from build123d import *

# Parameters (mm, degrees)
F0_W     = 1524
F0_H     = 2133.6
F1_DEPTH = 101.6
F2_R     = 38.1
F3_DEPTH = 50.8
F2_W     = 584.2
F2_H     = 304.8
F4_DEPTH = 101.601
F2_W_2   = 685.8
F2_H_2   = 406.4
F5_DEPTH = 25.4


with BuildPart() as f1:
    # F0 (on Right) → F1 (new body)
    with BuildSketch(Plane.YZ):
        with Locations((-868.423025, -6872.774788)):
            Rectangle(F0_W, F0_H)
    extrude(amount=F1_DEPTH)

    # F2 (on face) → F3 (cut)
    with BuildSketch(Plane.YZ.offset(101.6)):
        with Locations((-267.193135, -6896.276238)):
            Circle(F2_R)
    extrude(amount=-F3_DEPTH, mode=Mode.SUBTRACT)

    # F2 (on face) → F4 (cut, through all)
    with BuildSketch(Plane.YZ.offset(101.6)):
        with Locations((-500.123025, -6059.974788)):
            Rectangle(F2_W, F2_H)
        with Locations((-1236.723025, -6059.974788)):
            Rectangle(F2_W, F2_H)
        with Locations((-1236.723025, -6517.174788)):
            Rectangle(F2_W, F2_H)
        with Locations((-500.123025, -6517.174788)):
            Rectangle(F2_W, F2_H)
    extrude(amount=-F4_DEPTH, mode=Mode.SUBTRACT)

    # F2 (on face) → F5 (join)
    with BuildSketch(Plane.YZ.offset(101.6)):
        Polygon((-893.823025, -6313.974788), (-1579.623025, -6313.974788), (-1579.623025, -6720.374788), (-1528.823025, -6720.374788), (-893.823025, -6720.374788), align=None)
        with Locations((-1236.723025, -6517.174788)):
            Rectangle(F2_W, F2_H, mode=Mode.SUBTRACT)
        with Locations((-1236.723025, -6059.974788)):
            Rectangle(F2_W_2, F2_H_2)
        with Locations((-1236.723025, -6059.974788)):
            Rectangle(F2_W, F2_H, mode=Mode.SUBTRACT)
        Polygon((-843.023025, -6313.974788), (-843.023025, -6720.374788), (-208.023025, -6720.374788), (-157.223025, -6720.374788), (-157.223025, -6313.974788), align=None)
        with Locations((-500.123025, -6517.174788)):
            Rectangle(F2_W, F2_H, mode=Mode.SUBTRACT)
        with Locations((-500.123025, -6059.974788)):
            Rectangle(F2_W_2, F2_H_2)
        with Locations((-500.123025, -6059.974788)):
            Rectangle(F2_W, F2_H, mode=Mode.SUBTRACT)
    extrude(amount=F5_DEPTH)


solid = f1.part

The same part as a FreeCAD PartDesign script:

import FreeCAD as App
import Part
import Sketcher
Q = App.Units.Quantity

doc = App.newDocument("Part")
body = doc.addObject("PartDesign::Body", "Body")

# Sketch on YZ plane
sketch1 = body.newObject("Sketcher::SketchObject", "Sketch")
sketch1.AttachmentSupport = (doc.getObject("YZ_Plane"), [""])
sketch1.MapMode = "FlatFace"
sketch1.addGeometry([
    Part.LineSegment(App.Vector(-1630.423025, -5805.974788, 0), App.Vector(-1630.423025, -7939.574788, 0)),
    Part.LineSegment(App.Vector(-1630.423025, -7939.574788, 0), App.Vector(-106.423025, -7939.574788, 0)),
    Part.LineSegment(App.Vector(-106.423025, -7939.574788, 0), App.Vector(-106.423025, -5805.974788, 0)),
    Part.LineSegment(App.Vector(-106.423025, -5805.974788, 0), App.Vector(-1630.423025, -5805.974788, 0)),
], False)
sketch1.addConstraint([
    Sketcher.Constraint("Coincident", 0, 2, 1, 1),
    Sketcher.Constraint("Coincident", 1, 2, 2, 1),
    Sketcher.Constraint("Coincident", 2, 2, 3, 1),
    Sketcher.Constraint("Coincident", 3, 2, 0, 1),
    Sketcher.Constraint("Vertical", 0),
    Sketcher.Constraint("Horizontal", 1),
    Sketcher.Constraint("Vertical", 2),
    Sketcher.Constraint("Horizontal", 3),
    Sketcher.Constraint("DistanceX", 1, 1, 1, 2, Q("60 in")),
    Sketcher.Constraint("DistanceY", 0, 2, 0, 1, Q("84 in")),
    Sketcher.Constraint("DistanceY", 0, 2, -1, 1, Q("7939.574788 mm")),
    Sketcher.Constraint("DistanceX", 0, 2, -1, 1, Q("1630.423025 mm")),
])
pad1 = body.newObject("PartDesign::Pad", "Pad")
pad1.Profile = sketch1
pad1.Length = Q("4 in")

# Sketch on YZ plane
sketch2 = body.newObject("Sketcher::SketchObject", "Sketch001")
sketch2.AttachmentSupport = (doc.getObject("YZ_Plane"), [""])
sketch2.MapMode = "FlatFace"
sketch2.AttachmentOffset = App.Placement(App.Vector(0, 0, 4 * 25.4), App.Rotation())
sketch2.addGeometry(Part.Circle(App.Vector(-267.193135, -6896.276238, 0), App.Vector(0, 0, 1), 38.1), False)
sketch2.addConstraint([
    Sketcher.Constraint("Diameter", 0, Q("3 in")),
    Sketcher.Constraint("DistanceY", 0, 3, -1, 1, Q("6896.276238 mm")),
    Sketcher.Constraint("DistanceX", 0, 3, -1, 1, Q("267.193135 mm")),
])
pocket1 = body.newObject("PartDesign::Pocket", "Pocket")
pocket1.Profile = sketch2
pocket1.Length = Q("2 in")

# Sketch on YZ plane
sketch3 = body.newObject("Sketcher::SketchObject", "Sketch002")
sketch3.AttachmentSupport = (doc.getObject("YZ_Plane"), [""])
sketch3.MapMode = "FlatFace"
sketch3.AttachmentOffset = App.Placement(App.Vector(0, 0, 4 * 25.4), App.Rotation())
sketch3.addGeometry([
    Part.LineSegment(App.Vector(-792.223025, -5907.574788, 0), App.Vector(-792.223025, -6212.374788, 0)),  # 0
    Part.LineSegment(App.Vector(-792.223025, -6212.374788, 0), App.Vector(-208.023025, -6212.374788, 0)),  # 1
    Part.LineSegment(App.Vector(-208.023025, -6212.374788, 0), App.Vector(-208.023025, -5907.574788, 0)),  # 2
    Part.LineSegment(App.Vector(-208.023025, -5907.574788, 0), App.Vector(-792.223025, -5907.574788, 0)),  # 3
    Part.LineSegment(App.Vector(-1528.823025, -5907.574788, 0), App.Vector(-1528.823025, -6212.374788, 0)),  # 4
    Part.LineSegment(App.Vector(-1528.823025, -6212.374788, 0), App.Vector(-944.623025, -6212.374788, 0)),  # 5
    Part.LineSegment(App.Vector(-944.623025, -6212.374788, 0), App.Vector(-944.623025, -5907.574788, 0)),  # 6
    Part.LineSegment(App.Vector(-944.623025, -5907.574788, 0), App.Vector(-1528.823025, -5907.574788, 0)),  # 7
    Part.LineSegment(App.Vector(-1528.823025, -6364.774788, 0), App.Vector(-1528.823025, -6669.574788, 0)),  # 8
    Part.LineSegment(App.Vector(-1528.823025, -6669.574788, 0), App.Vector(-944.623025, -6669.574788, 0)),  # 9
    Part.LineSegment(App.Vector(-944.623025, -6669.574788, 0), App.Vector(-944.623025, -6364.774788, 0)),  # 10
    Part.LineSegment(App.Vector(-944.623025, -6364.774788, 0), App.Vector(-1528.823025, -6364.774788, 0)),  # 11
    Part.LineSegment(App.Vector(-792.223025, -6364.774788, 0), App.Vector(-792.223025, -6669.574788, 0)),  # 12
    Part.LineSegment(App.Vector(-792.223025, -6669.574788, 0), App.Vector(-208.023025, -6669.574788, 0)),  # 13
    Part.LineSegment(App.Vector(-208.023025, -6669.574788, 0), App.Vector(-208.023025, -6364.774788, 0)),  # 14
    Part.LineSegment(App.Vector(-208.023025, -6364.774788, 0), App.Vector(-792.223025, -6364.774788, 0)),  # 15
], False)
sketch3.addConstraint([
    Sketcher.Constraint("Coincident", 0, 2, 1, 1),
    Sketcher.Constraint("Coincident", 1, 2, 2, 1),
    Sketcher.Constraint("Coincident", 2, 2, 3, 1),
    Sketcher.Constraint("Coincident", 3, 2, 0, 1),
    Sketcher.Constraint("Coincident", 4, 2, 5, 1),
    Sketcher.Constraint("Coincident", 5, 2, 6, 1),
    Sketcher.Constraint("Coincident", 6, 2, 7, 1),
    Sketcher.Constraint("Coincident", 7, 2, 4, 1),
    Sketcher.Constraint("Coincident", 8, 2, 9, 1),
    Sketcher.Constraint("Coincident", 9, 2, 10, 1),
    Sketcher.Constraint("Coincident", 10, 2, 11, 1),
    Sketcher.Constraint("Coincident", 11, 2, 8, 1),
    Sketcher.Constraint("Coincident", 12, 2, 13, 1),
    Sketcher.Constraint("Coincident", 13, 2, 14, 1),
    Sketcher.Constraint("Coincident", 14, 2, 15, 1),
    Sketcher.Constraint("Coincident", 15, 2, 12, 1),
    Sketcher.Constraint("Vertical", 0),
    Sketcher.Constraint("Horizontal", 1),
    Sketcher.Constraint("Vertical", 2),
    Sketcher.Constraint("Horizontal", 3),
    Sketcher.Constraint("Vertical", 4),
    Sketcher.Constraint("Horizontal", 5),
    Sketcher.Constraint("Vertical", 6),
    Sketcher.Constraint("Horizontal", 7),
    Sketcher.Constraint("Vertical", 8),
    Sketcher.Constraint("Horizontal", 9),
    Sketcher.Constraint("Vertical", 10),
    Sketcher.Constraint("Horizontal", 11),
    Sketcher.Constraint("Vertical", 12),
    Sketcher.Constraint("Horizontal", 13),
    Sketcher.Constraint("Vertical", 14),
    Sketcher.Constraint("Horizontal", 15),
    Sketcher.Constraint("Horizontal", 1, 2, 4, 2),
    Sketcher.Constraint("Horizontal", 3, 2, 6, 2),
    Sketcher.Constraint("Horizontal", 9, 2, 12, 2),
    Sketcher.Constraint("Horizontal", 11, 2, 14, 2),
    Sketcher.Constraint("Vertical", 7, 2, 8, 2),
    Sketcher.Constraint("Vertical", 6, 2, 9, 2),
    Sketcher.Constraint("Vertical", 3, 2, 12, 2),
    Sketcher.Constraint("Vertical", 2, 2, 13, 2),
    Sketcher.Constraint("Equal", 3, 5),
    Sketcher.Constraint("Equal", 6, 8),
    Sketcher.Constraint("DistanceX", 1, 1, 1, 2, Q("23 in")),
    Sketcher.Constraint("DistanceY", 0, 2, 0, 1, Q("12 in")),
    Sketcher.Constraint("DistanceX", 4, 2, 0, 2, Q("29 in")),
    Sketcher.Constraint("DistanceY", 8, 2, 4, 2, Q("18 in")),
    Sketcher.Constraint("DistanceY", 0, 2, -1, 1, Q("6212.374788 mm")),
    Sketcher.Constraint("DistanceX", 0, 2, -1, 1, Q("792.223025 mm")),
])
pocket2 = body.newObject("PartDesign::Pocket", "Pocket001")
pocket2.Profile = sketch3
pocket2.Type = "ThroughAll"

# Sketch on YZ plane
sketch4 = body.newObject("Sketcher::SketchObject", "Sketch003")
sketch4.AttachmentSupport = (doc.getObject("YZ_Plane"), [""])
sketch4.MapMode = "FlatFace"
sketch4.AttachmentOffset = App.Placement(App.Vector(0, 0, 4 * 25.4), App.Rotation())
sketch4.addGeometry([
    Part.LineSegment(App.Vector(-893.823025, -6313.974788, 0), App.Vector(-1579.623025, -6313.974788, 0)),  # 0
    Part.LineSegment(App.Vector(-1579.623025, -6313.974788, 0), App.Vector(-1579.623025, -6720.374788, 0)),  # 1
    Part.LineSegment(App.Vector(-1579.623025, -6720.374788, 0), App.Vector(-893.823025, -6720.374788, 0)),  # 2
    Part.LineSegment(App.Vector(-893.823025, -6720.374788, 0), App.Vector(-893.823025, -6313.974788, 0)),  # 3
    Part.LineSegment(App.Vector(-944.623025, -6669.574788, 0), App.Vector(-1528.823025, -6669.574788, 0)),  # 4
    Part.LineSegment(App.Vector(-1528.823025, -6669.574788, 0), App.Vector(-1528.823025, -6364.774788, 0)),  # 5
    Part.LineSegment(App.Vector(-1528.823025, -6364.774788, 0), App.Vector(-944.623025, -6364.774788, 0)),  # 6
    Part.LineSegment(App.Vector(-944.623025, -6364.774788, 0), App.Vector(-944.623025, -6669.574788, 0)),  # 7
    Part.LineSegment(App.Vector(-1579.623025, -5856.774788, 0), App.Vector(-1579.623025, -6263.174788, 0)),  # 8
    Part.LineSegment(App.Vector(-1579.623025, -6263.174788, 0), App.Vector(-893.823025, -6263.174788, 0)),  # 9
    Part.LineSegment(App.Vector(-893.823025, -6263.174788, 0), App.Vector(-893.823025, -5856.774788, 0)),  # 10
    Part.LineSegment(App.Vector(-893.823025, -5856.774788, 0), App.Vector(-1579.623025, -5856.774788, 0)),  # 11
    Part.LineSegment(App.Vector(-944.623025, -6212.374788, 0), App.Vector(-1528.823025, -6212.374788, 0)),  # 12
    Part.LineSegment(App.Vector(-1528.823025, -6212.374788, 0), App.Vector(-1528.823025, -5907.574788, 0)),  # 13
    Part.LineSegment(App.Vector(-1528.823025, -5907.574788, 0), App.Vector(-944.623025, -5907.574788, 0)),  # 14
    Part.LineSegment(App.Vector(-944.623025, -5907.574788, 0), App.Vector(-944.623025, -6212.374788, 0)),  # 15
    Part.LineSegment(App.Vector(-843.023025, -6313.974788, 0), App.Vector(-843.023025, -6720.374788, 0)),  # 16
    Part.LineSegment(App.Vector(-843.023025, -6720.374788, 0), App.Vector(-157.223025, -6720.374788, 0)),  # 17
    Part.LineSegment(App.Vector(-157.223025, -6720.374788, 0), App.Vector(-157.223025, -6313.974788, 0)),  # 18
    Part.LineSegment(App.Vector(-157.223025, -6313.974788, 0), App.Vector(-843.023025, -6313.974788, 0)),  # 19
    Part.LineSegment(App.Vector(-208.023025, -6669.574788, 0), App.Vector(-792.223025, -6669.574788, 0)),  # 20
    Part.LineSegment(App.Vector(-792.223025, -6669.574788, 0), App.Vector(-792.223025, -6364.774788, 0)),  # 21
    Part.LineSegment(App.Vector(-792.223025, -6364.774788, 0), App.Vector(-208.023025, -6364.774788, 0)),  # 22
    Part.LineSegment(App.Vector(-208.023025, -6364.774788, 0), App.Vector(-208.023025, -6669.574788, 0)),  # 23
    Part.LineSegment(App.Vector(-843.023025, -5856.774788, 0), App.Vector(-843.023025, -6263.174788, 0)),  # 24
    Part.LineSegment(App.Vector(-843.023025, -6263.174788, 0), App.Vector(-157.223025, -6263.174788, 0)),  # 25
    Part.LineSegment(App.Vector(-157.223025, -6263.174788, 0), App.Vector(-157.223025, -5856.774788, 0)),  # 26
    Part.LineSegment(App.Vector(-157.223025, -5856.774788, 0), App.Vector(-843.023025, -5856.774788, 0)),  # 27
    Part.LineSegment(App.Vector(-208.023025, -6212.374788, 0), App.Vector(-792.223025, -6212.374788, 0)),  # 28
    Part.LineSegment(App.Vector(-792.223025, -6212.374788, 0), App.Vector(-792.223025, -5907.574788, 0)),  # 29
    Part.LineSegment(App.Vector(-792.223025, -5907.574788, 0), App.Vector(-208.023025, -5907.574788, 0)),  # 30
    Part.LineSegment(App.Vector(-208.023025, -5907.574788, 0), App.Vector(-208.023025, -6212.374788, 0)),  # 31
], False)
sketch4.addConstraint([
    Sketcher.Constraint("Coincident", 0, 2, 1, 1),
    Sketcher.Constraint("Coincident", 1, 2, 2, 1),
    Sketcher.Constraint("Coincident", 2, 2, 3, 1),
    Sketcher.Constraint("Coincident", 3, 2, 0, 1),
    Sketcher.Constraint("Coincident", 4, 2, 5, 1),
    Sketcher.Constraint("Coincident", 5, 2, 6, 1),
    Sketcher.Constraint("Coincident", 6, 2, 7, 1),
    Sketcher.Constraint("Coincident", 7, 2, 4, 1),
    Sketcher.Constraint("Coincident", 8, 2, 9, 1),
    Sketcher.Constraint("Coincident", 9, 2, 10, 1),
    Sketcher.Constraint("Coincident", 10, 2, 11, 1),
    Sketcher.Constraint("Coincident", 11, 2, 8, 1),
    Sketcher.Constraint("Coincident", 12, 2, 13, 1),
    Sketcher.Constraint("Coincident", 13, 2, 14, 1),
    Sketcher.Constraint("Coincident", 14, 2, 15, 1),
    Sketcher.Constraint("Coincident", 15, 2, 12, 1),
    Sketcher.Constraint("Coincident", 16, 2, 17, 1),
    Sketcher.Constraint("Coincident", 17, 2, 18, 1),
    Sketcher.Constraint("Coincident", 18, 2, 19, 1),
    Sketcher.Constraint("Coincident", 19, 2, 16, 1),
    Sketcher.Constraint("Coincident", 20, 2, 21, 1),
    Sketcher.Constraint("Coincident", 21, 2, 22, 1),
    Sketcher.Constraint("Coincident", 22, 2, 23, 1),
    Sketcher.Constraint("Coincident", 23, 2, 20, 1),
    Sketcher.Constraint("Coincident", 24, 2, 25, 1),
    Sketcher.Constraint("Coincident", 25, 2, 26, 1),
    Sketcher.Constraint("Coincident", 26, 2, 27, 1),
    Sketcher.Constraint("Coincident", 27, 2, 24, 1),
    Sketcher.Constraint("Coincident", 28, 2, 29, 1),
    Sketcher.Constraint("Coincident", 29, 2, 30, 1),
    Sketcher.Constraint("Coincident", 30, 2, 31, 1),
    Sketcher.Constraint("Coincident", 31, 2, 28, 1),
    Sketcher.Constraint("Horizontal", 0),
    Sketcher.Constraint("Vertical", 1),
    Sketcher.Constraint("Horizontal", 2),
    Sketcher.Constraint("Vertical", 3),
    Sketcher.Constraint("Horizontal", 4),
    Sketcher.Constraint("Vertical", 5),
    Sketcher.Constraint("Horizontal", 6),
    Sketcher.Constraint("Vertical", 7),
    Sketcher.Constraint("Vertical", 8),
    Sketcher.Constraint("Horizontal", 9),
    Sketcher.Constraint("Vertical", 10),
    Sketcher.Constraint("Horizontal", 11),
    Sketcher.Constraint("Horizontal", 12),
    Sketcher.Constraint("Vertical", 13),
    Sketcher.Constraint("Horizontal", 14),
    Sketcher.Constraint("Vertical", 15),
    Sketcher.Constraint("Vertical", 16),
    Sketcher.Constraint("Horizontal", 17),
    Sketcher.Constraint("Vertical", 18),
    Sketcher.Constraint("Horizontal", 19),
    Sketcher.Constraint("Horizontal", 20),
    Sketcher.Constraint("Vertical", 21),
    Sketcher.Constraint("Horizontal", 22),
    Sketcher.Constraint("Vertical", 23),
    Sketcher.Constraint("Vertical", 24),
    Sketcher.Constraint("Horizontal", 25),
    Sketcher.Constraint("Vertical", 26),
    Sketcher.Constraint("Horizontal", 27),
    Sketcher.Constraint("Horizontal", 28),
    Sketcher.Constraint("Vertical", 29),
    Sketcher.Constraint("Horizontal", 30),
    Sketcher.Constraint("Vertical", 31),
    Sketcher.Constraint("Horizontal", 2, 2, 16, 2),
    Sketcher.Constraint("Horizontal", 3, 2, 18, 2),
    Sketcher.Constraint("Horizontal", 7, 2, 20, 2),
    Sketcher.Constraint("Horizontal", 6, 2, 21, 2),
    Sketcher.Constraint("Horizontal", 9, 2, 24, 2),
    Sketcher.Constraint("Horizontal", 11, 2, 26, 2),
    Sketcher.Constraint("Horizontal", 15, 2, 28, 2),
    Sketcher.Constraint("Horizontal", 14, 2, 29, 2),
    Sketcher.Constraint("Vertical", 1, 2, 8, 2),
    Sketcher.Constraint("Vertical", 3, 2, 9, 2),
    Sketcher.Constraint("Vertical", 5, 2, 12, 2),
    Sketcher.Constraint("Vertical", 7, 2, 14, 2),
    Sketcher.Constraint("Vertical", 19, 2, 24, 2),
    Sketcher.Constraint("Vertical", 18, 2, 25, 2),
    Sketcher.Constraint("Vertical", 21, 2, 28, 2),
    Sketcher.Constraint("Vertical", 23, 2, 30, 2),
    Sketcher.Constraint("Equal", 11, 17),
    Sketcher.Constraint("Equal", 14, 20),
    Sketcher.Constraint("Equal", 3, 8),
    Sketcher.Constraint("Equal", 7, 13),
    Sketcher.Constraint("DistanceX", 0, 2, 0, 1, Q("27 in")),
    Sketcher.Constraint("DistanceX", 4, 2, 4, 1, Q("23 in")),
    Sketcher.Constraint("DistanceY", 1, 2, 1, 1, Q("16 in")),
    Sketcher.Constraint("DistanceY", 5, 1, 5, 2, Q("12 in")),
    Sketcher.Constraint("DistanceX", 1, 2, 4, 2, Q("2 in")),
    Sketcher.Constraint("DistanceY", 1, 2, 4, 2, Q("2 in")),
    Sketcher.Constraint("DistanceY", 0, 2, 8, 2, Q("2 in")),
    Sketcher.Constraint("DistanceY", 8, 2, 12, 2, Q("2 in")),
    Sketcher.Constraint("DistanceX", 2, 2, 16, 2, Q("2 in")),
    Sketcher.Constraint("DistanceX", 16, 2, 20, 2, Q("2 in")),
    Sketcher.Constraint("DistanceY", 0, 2, -1, 1, Q("6313.974788 mm")),
    Sketcher.Constraint("DistanceX", 0, 2, -1, 1, Q("1579.623025 mm")),
])
pad2 = body.newObject("PartDesign::Pad", "Pad001")
pad2.Profile = sketch4
pad2.Length = Q("1 in")

doc.recompute()
